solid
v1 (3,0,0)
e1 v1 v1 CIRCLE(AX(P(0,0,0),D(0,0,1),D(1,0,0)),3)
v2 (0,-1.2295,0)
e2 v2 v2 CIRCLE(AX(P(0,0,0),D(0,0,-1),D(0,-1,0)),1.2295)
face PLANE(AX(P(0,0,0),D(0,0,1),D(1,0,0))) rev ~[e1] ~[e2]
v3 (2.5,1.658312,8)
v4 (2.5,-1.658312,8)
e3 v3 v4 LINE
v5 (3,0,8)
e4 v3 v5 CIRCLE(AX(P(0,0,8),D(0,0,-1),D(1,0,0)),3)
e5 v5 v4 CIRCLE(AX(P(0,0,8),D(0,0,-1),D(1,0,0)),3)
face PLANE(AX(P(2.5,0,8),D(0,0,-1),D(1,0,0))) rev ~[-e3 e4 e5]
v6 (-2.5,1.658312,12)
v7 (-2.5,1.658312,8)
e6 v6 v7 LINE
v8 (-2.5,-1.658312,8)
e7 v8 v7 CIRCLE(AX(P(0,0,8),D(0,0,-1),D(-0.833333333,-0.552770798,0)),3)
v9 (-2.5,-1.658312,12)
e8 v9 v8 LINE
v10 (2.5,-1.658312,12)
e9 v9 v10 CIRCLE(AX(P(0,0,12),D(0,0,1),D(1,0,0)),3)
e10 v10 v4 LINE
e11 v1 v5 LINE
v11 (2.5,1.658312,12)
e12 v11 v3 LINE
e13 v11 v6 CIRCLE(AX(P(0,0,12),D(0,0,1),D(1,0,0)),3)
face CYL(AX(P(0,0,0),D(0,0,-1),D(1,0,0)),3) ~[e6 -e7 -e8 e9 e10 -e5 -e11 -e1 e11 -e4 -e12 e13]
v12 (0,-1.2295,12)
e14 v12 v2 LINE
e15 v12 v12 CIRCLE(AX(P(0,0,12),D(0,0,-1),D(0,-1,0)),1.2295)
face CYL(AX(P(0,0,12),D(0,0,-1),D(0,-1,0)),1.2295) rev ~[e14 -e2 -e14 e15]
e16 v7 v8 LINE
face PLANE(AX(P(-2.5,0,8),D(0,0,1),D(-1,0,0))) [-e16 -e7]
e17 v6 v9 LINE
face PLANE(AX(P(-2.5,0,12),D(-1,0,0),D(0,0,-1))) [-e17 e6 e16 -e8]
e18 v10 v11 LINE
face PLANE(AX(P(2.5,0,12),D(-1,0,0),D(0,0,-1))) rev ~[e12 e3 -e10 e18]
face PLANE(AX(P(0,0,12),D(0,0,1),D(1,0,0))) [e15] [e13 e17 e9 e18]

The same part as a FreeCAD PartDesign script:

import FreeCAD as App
import Part
import Sketcher
from FreeCAD import Vector

doc = App.newDocument("Part")
body = doc.addObject("PartDesign::Body", "Body")

# Sketch on XY plane
sketch1 = doc.addObject("Sketcher::SketchObject", "Sketch")
body.addObject(sketch1)
sketch1.AttachmentSupport = (doc.XY_Plane, [""])
sketch1.MapMode = "FlatFace"
sketch1.addGeometry(Part.Circle(Vector(0, 0, 0), Vector(0, 0, 1), 3), False)
sketch1.addConstraint([
    Sketcher.Constraint("Coincident", 0, 3, -1, 1),
    Sketcher.Constraint("Diameter", 0, 6.0),
])
pad1 = doc.addObject("PartDesign::Pad", "Pad")
body.addObject(pad1)
pad1.Profile = sketch1
pad1.Length = 12

# Sketch on XY plane
sketch2 = doc.addObject("Sketcher::SketchObject", "Sketch001")
body.addObject(sketch2)
sketch2.AttachmentSupport = (doc.XY_Plane, [""])
sketch2.MapMode = "FlatFace"
sketch2.AttachmentOffset = App.Placement(Vector(0, 0, 12), App.Rotation())
sketch2.addGeometry(Part.Circle(Vector(0, 0, 0), Vector(0, 0, 1), 1.2295), False)
sketch2.addConstraint([
    Sketcher.Constraint("Coincident", 0, 3, -1, 1),
    Sketcher.Constraint("Diameter", 0, 2.459),
])
doc.recompute()
hole = doc.addObject("PartDesign::Hole", "Hole")
body.addObject(hole)
hole.Profile = sketch2
hole.ThreadType = "None"
hole.Diameter = 2.459
hole.DepthType = "ThroughAll"

# Sketch on XZ plane
sketch3 = doc.addObject("Sketcher::SketchObject", "Sketch002")
body.addObject(sketch3)
sketch3.AttachmentSupport = (doc.XZ_Plane, [""])
sketch3.MapMode = "FlatFace"
sketch3.addGeometry([
    Part.LineSegment(Vector(-2.5, 8, 0), Vector(-3, 8, 0)),  # 0
    Part.LineSegment(Vector(-3, 8, 0), Vector(-3, 12, 0)),  # 1
    Part.LineSegment(Vector(-3, 12, 0), Vector(-2.5, 12, 0)),  # 2
    Part.LineSegment(Vector(-2.5, 12, 0), Vector(-2.5, 8, 0)),  # 3
    Part.LineSegment(Vector(2.5, 8, 0), Vector(2.5, 12, 0)),  # 4
    Part.LineSegment(Vector(2.5, 12, 0), Vector(3, 12, 0)),  # 5
    Part.LineSegment(Vector(3, 12, 0), Vector(3, 8, 0)),  # 6
    Part.LineSegment(Vector(3, 8, 0), Vector(2.5, 8, 0)),  # 7
], False)
sketch3.addConstraint([
    Sketcher.Constraint("Coincident", 0, 2, 1, 1),
    Sketcher.Constraint("Coincident", 1, 2, 2, 1),
    Sketcher.Constraint("Coincident", 2, 2, 3, 1),
    Sketcher.Constraint("Coincident", 3, 2, 0, 1),
    Sketcher.Constraint("Coincident", 4, 2, 5, 1),
    Sketcher.Constraint("Coincident", 5, 2, 6, 1),
    Sketcher.Constraint("Coincident", 6, 2, 7, 1),
    Sketcher.Constraint("Coincident", 7, 2, 4, 1),
    Sketcher.Constraint("Horizontal", 0),
    Sketcher.Constraint("Vertical", 1),
    Sketcher.Constraint("Horizontal", 2),
    Sketcher.Constraint("Vertical", 3),
    Sketcher.Constraint("Vertical", 4),
    Sketcher.Constraint("Horizontal", 5),
    Sketcher.Constraint("Vertical", 6),
    Sketcher.Constraint("Horizontal", 7),
    Sketcher.Constraint("Symmetric", 2, 2, 4, 2, -2),
    Sketcher.Constraint("Symmetric", 0, 2, 6, 2, -2),
    Sketcher.Constraint("DistanceY", 1, 1, 1, 2, 4.0),
    Sketcher.Constraint("DistanceX", 0, 2, 0, 1, 0.5),
    Sketcher.Constraint("DistanceX", 2, 2, 4, 2, 5.0),
    Sketcher.Constraint("DistanceY", -1, 1, 0, 2, 8.0),
])
pocket1 = doc.addObject("PartDesign::Pocket", "Pocket")
body.addObject(pocket1)
pocket1.Profile = sketch3
pocket1.Type = "ThroughAll"
pocket1.Midplane = True

doc.recompute()
